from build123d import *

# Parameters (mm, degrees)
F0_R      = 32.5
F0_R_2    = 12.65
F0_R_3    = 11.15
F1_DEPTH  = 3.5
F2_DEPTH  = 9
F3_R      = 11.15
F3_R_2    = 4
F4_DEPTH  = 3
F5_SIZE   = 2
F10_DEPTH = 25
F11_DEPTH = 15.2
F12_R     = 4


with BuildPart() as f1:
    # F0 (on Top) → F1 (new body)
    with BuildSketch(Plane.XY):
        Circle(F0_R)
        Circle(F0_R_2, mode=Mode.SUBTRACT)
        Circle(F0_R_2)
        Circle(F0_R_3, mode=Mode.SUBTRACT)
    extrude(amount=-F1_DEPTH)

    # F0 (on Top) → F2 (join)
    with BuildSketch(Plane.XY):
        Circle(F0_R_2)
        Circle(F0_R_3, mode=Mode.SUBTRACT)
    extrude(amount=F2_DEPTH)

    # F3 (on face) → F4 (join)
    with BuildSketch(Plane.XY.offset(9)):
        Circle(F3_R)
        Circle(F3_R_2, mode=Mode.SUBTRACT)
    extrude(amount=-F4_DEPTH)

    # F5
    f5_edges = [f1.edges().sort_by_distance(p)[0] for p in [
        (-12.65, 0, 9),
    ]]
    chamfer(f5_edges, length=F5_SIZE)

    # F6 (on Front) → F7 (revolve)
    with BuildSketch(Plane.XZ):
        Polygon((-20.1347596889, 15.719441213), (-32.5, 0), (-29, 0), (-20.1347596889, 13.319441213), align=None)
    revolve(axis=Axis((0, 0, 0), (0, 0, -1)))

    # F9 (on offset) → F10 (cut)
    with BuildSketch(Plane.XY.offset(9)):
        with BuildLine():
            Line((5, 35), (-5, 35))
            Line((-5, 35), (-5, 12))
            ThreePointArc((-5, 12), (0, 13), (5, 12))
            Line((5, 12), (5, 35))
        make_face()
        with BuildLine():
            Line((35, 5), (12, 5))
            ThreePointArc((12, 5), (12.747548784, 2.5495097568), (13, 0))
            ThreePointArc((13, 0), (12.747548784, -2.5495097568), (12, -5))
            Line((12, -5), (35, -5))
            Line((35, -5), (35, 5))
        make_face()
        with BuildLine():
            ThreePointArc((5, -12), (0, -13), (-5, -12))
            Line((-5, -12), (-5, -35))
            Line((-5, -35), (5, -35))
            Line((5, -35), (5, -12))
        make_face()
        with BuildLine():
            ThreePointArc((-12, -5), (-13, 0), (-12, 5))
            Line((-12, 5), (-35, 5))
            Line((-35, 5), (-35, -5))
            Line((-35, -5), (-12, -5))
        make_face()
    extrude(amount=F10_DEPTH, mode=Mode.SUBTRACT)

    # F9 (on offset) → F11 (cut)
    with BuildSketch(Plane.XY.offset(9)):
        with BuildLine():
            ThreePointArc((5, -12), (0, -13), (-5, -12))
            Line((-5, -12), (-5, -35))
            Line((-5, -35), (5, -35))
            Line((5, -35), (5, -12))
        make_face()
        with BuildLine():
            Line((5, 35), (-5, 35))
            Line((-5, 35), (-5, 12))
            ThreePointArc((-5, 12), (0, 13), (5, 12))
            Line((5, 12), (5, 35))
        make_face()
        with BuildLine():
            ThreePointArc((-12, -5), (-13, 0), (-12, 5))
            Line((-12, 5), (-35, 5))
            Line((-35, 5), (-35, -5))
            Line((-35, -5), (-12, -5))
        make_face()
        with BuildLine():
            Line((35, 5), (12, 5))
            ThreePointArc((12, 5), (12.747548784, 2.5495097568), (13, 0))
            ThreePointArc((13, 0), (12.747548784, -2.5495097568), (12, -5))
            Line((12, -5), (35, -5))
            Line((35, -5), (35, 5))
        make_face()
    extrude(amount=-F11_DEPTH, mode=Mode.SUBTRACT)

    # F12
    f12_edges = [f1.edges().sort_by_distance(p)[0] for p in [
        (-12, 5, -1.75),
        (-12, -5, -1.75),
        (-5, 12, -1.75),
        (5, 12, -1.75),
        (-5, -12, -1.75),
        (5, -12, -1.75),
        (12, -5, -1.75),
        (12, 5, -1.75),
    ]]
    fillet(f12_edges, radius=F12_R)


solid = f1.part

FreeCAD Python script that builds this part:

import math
import FreeCAD as App
import Part
import Sketcher


def edges_at(feature, points):
    """Names of the edges that pass closest to the given points."""
    edges = feature.Shape.Edges
    near = lambda p: min(range(len(edges)), key=lambda i: edges[i].distToShape(Part.Vertex(*p))[0])
    return sorted({f"Edge{near(p) + 1}" for p in points})


def add_polygon(sketch, points):
    """Adds a closed chain of lines whose ends are joined by coincident constraints."""
    first, n = sketch.GeometryCount, len(points)
    for a, b in zip(points, points[1:] + points[:1]):
        sketch.addGeometry(Part.LineSegment(App.Vector(*a, 0), App.Vector(*b, 0)), False)
    for i in range(n):
        sketch.addConstraint(Sketcher.Constraint("Coincident", first + i, 2, first + (i + 1) % n, 1))

doc = App.newDocument("Part")
body = doc.addObject("PartDesign::Body", "Body")

# Sketch on XY plane
sketch1 = doc.addObject("Sketcher::SketchObject", "Sketch")
body.addObject(sketch1)
sketch1.AttachmentSupport = (doc.XY_Plane, [""])
sketch1.MapMode = "FlatFace"
sketch1.addGeometry(Part.Circle(App.Vector(0, 0, 0), App.Vector(0, 0, 1), 32), False)
sketch1.addGeometry(Part.Circle(App.Vector(0, 0, 0), App.Vector(0, 0, 1), 11), False)
sketch1.addConstraint(Sketcher.Constraint("Coincident", 0, 3, -1, 1))
sketch1.addConstraint(Sketcher.Constraint("Coincident", 1, 3, -1, 1))
sketch1.addConstraint(Sketcher.Constraint("Diameter", 0, 65.0))
sketch1.addConstraint(Sketcher.Constraint("Diameter", 1, 22.3))
pad1 = doc.addObject("PartDesign::Pad", "Pad")
body.addObject(pad1)
pad1.Profile = sketch1
pad1.Length = 3.5
pad1.Reversed = True

# Sketch on XY plane
sketch2 = doc.addObject("Sketcher::SketchObject", "Sketch001")
body.addObject(sketch2)
sketch2.AttachmentSupport = (doc.XY_Plane, [""])
sketch2.MapMode = "FlatFace"
sketch2.addGeometry(Part.Circle(App.Vector(0, 0, 0), App.Vector(0, 0, 1), 13), False)
sketch2.addGeometry(Part.Circle(App.Vector(0, 0, 0), App.Vector(0, 0, 1), 11), False)
sketch2.addConstraint(Sketcher.Constraint("Coincident", 0, 3, -1, 1))
sketch2.addConstraint(Sketcher.Constraint("Coincident", 1, 3, -1, 1))
sketch2.addConstraint(Sketcher.Constraint("Diameter", 0, 25.3))
sketch2.addConstraint(Sketcher.Constraint("Diameter", 1, 22.3))
pad2 = doc.addObject("PartDesign::Pad", "Pad001")
body.addObject(pad2)
pad2.Profile = sketch2
pad2.Length = 9

# Sketch on XY plane
sketch3 = doc.addObject("Sketcher::SketchObject", "Sketch002")
body.addObject(sketch3)
sketch3.AttachmentSupport = (doc.XY_Plane, [""])
sketch3.MapMode = "FlatFace"
sketch3.AttachmentOffset = App.Placement(App.Vector(0, 0, 9), App.Rotation())
sketch3.addGeometry(Part.Circle(App.Vector(0, 0, 0), App.Vector(0, 0, 1), 11.2), False)
sketch3.addGeometry(Part.Circle(App.Vector(0, 0, 0), App.Vector(0, 0, 1), 4), False)
sketch3.addConstraint(Sketcher.Constraint("Coincident", 0, 3, -1, 1))
sketch3.addConstraint(Sketcher.Constraint("Coincident", 1, 3, -1, 1))
sketch3.addConstraint(Sketcher.Constraint("Diameter", 1, 8.0))
sketch3.addConstraint(Sketcher.Constraint("Diameter", 0, 22.3))
pad3 = doc.addObject("PartDesign::Pad", "Pad002")
body.addObject(pad3)
pad3.Profile = sketch3
pad3.Length = 3
pad3.Reversed = True
doc.recompute()

chamfer = doc.addObject("PartDesign::Chamfer", "Chamfer")
body.addObject(chamfer)
chamfer.Base = (pad3, edges_at(pad3, [(-12.65, 0, 9)]))
chamfer.Size = 2

# Sketch on XZ plane
sketch4 = doc.addObject("Sketcher::SketchObject", "Sketch003")
body.addObject(sketch4)
sketch4.AttachmentSupport = (doc.XZ_Plane, [""])
sketch4.MapMode = "FlatFace"
add_polygon(sketch4, [(-20.1, 15.7), (-32.5, 0), (-29, 0), (-20.1, 13.3)])  # lines 0-3
sketch4.addConstraint(Sketcher.Constraint("Horizontal", 1))
sketch4.addConstraint(Sketcher.Constraint("Vertical", 3))
sketch4.addConstraint(Sketcher.Constraint("PointOnObject", 0, 2, -1))
sketch4.addConstraint(Sketcher.Constraint("Distance", 0, 20.0))
sketch4.addConstraint(Sketcher.Constraint("Distance", 2, 16.0))
sketch4.addConstraint(Sketcher.Constraint("DistanceX", 1, 1, 1, 2, 3.5))
sketch4.addConstraint(Sketcher.Constraint("DistanceY", 3, 1, 3, 2, 2.4))
sketch4.addConstraint(Sketcher.Constraint("DistanceX", 1, 2, -1, 1, 29.0))
revolution = doc.addObject("PartDesign::Revolution", "Revolution")
body.addObject(revolution)
revolution.Profile = sketch4
revolution.ReferenceAxis = (sketch4, ["V_Axis"])
revolution.Angle = 360

# Sketch on XY plane
sketch5 = doc.addObject("Sketcher::SketchObject", "Sketch004")
body.addObject(sketch5)
sketch5.AttachmentSupport = (doc.XY_Plane, [""])
sketch5.MapMode = "FlatFace"
sketch5.AttachmentOffset = App.Placement(App.Vector(0, 0, 9), App.Rotation())
sketch5.addGeometry(Part.LineSegment(App.Vector(5, 35, 0), App.Vector(-5, 35, 0)), False)
sketch5.addGeometry(Part.LineSegment(App.Vector(-5, 35, 0), App.Vector(-5, 12, 0)), False)
sketch5.addGeometry(Part.ArcOfCircle(Part.Circle(App.Vector(0, 0, 0), App.Vector(0, 0, 1), 13), math.radians(67), math.radians(113)), False)
sketch5.addGeometry(Part.LineSegment(App.Vector(5, 12, 0), App.Vector(5, 35, 0)), False)
sketch5.addGeometry(Part.LineSegment(App.Vector(35, 5, 0), App.Vector(12, 5, 0)), False)
sketch5.addGeometry(Part.ArcOfCircle(Part.Circle(App.Vector(0, 0, 0), App.Vector(0, 0, 1), 13), math.radians(0), math.radians(23)), False)
sketch5.addGeometry(Part.ArcOfCircle(Part.Circle(App.Vector(0, 0, 0), App.Vector(0, 0, 1), 13), math.radians(-23), math.radians(0)), False)
sketch5.addGeometry(Part.LineSegment(App.Vector(12, -5, 0), App.Vector(35, -5, 0)), False)
sketch5.addGeometry(Part.LineSegment(App.Vector(35, -5, 0), App.Vector(35, 5, 0)), False)
sketch5.addGeometry(Part.ArcOfCircle(Part.Circle(App.Vector(0, 0, 0), App.Vector(0, 0, 1), 13), math.radians(-113), math.radians(-67)), False)
sketch5.addGeometry(Part.LineSegment(App.Vector(-5, -12, 0), App.Vector(-5, -35, 0)), False)
sketch5.addGeometry(Part.LineSegment(App.Vector(-5, -35, 0), App.Vector(5, -35, 0)), False)
sketch5.addGeometry(Part.LineSegment(App.Vector(5, -35, 0), App.Vector(5, -12, 0)), False)
sketch5.addGeometry(Part.ArcOfCircle(Part.Circle(App.Vector(0, 0, 0), App.Vector(0, 0, 1), 13), math.radians(157), math.radians(203)), False)
sketch5.addGeometry(Part.LineSegment(App.Vector(-12, 5, 0), App.Vector(-35, 5, 0)), False)
sketch5.addGeometry(Part.LineSegment(App.Vector(-35, 5, 0), App.Vector(-35, -5, 0)), False)
sketch5.addGeometry(Part.LineSegment(App.Vector(-35, -5, 0), App.Vector(-12, -5, 0)), False)
sketch5.addConstraint(Sketcher.Constraint("Coincident", 0, 2, 1, 1))
sketch5.addConstraint(Sketcher.Constraint("Coincident", 1, 2, 2, 2))
sketch5.addConstraint(Sketcher.Constraint("Coincident", 2, 1, 3, 1))
sketch5.addConstraint(Sketcher.Constraint("Coincident", 3, 2, 0, 1))
sketch5.addConstraint(Sketcher.Constraint("Coincident", 4, 2, 5, 2))
sketch5.addConstraint(Sketcher.Constraint("Tangent", 5, 1, 6, 2))
sketch5.addConstraint(Sketcher.Constraint("Coincident", 6, 1, 7, 1))
sketch5.addConstraint(Sketcher.Constraint("Coincident", 7, 2, 8, 1))
sketch5.addConstraint(Sketcher.Constraint("Coincident", 8, 2, 4, 1))
sketch5.addConstraint(Sketcher.Constraint("Coincident", 9, 1, 10, 1))
sketch5.addConstraint(Sketcher.Constraint("Coincident", 10, 2, 11, 1))
sketch5.addConstraint(Sketcher.Constraint("Coincident", 11, 2, 12, 1))
sketch5.addConstraint(Sketcher.Constraint("Coincident", 12, 2, 9, 2))
sketch5.addConstraint(Sketcher.Constraint("Coincident", 13, 1, 14, 1))
sketch5.addConstraint(Sketcher.Constraint("Coincident", 14, 2, 15, 1))
sketch5.addConstraint(Sketcher.Constraint("Coincident", 15, 2, 16, 1))
sketch5.addConstraint(Sketcher.Constraint("Coincident", 16, 2, 13, 2))
sketch5.addConstraint(Sketcher.Constraint("Horizontal", 0))
sketch5.addConstraint(Sketcher.Constraint("Vertical", 1))
sketch5.addConstraint(Sketcher.Constraint("Vertical", 3))
sketch5.addConstraint(Sketcher.Constraint("Horizontal", 4))
sketch5.addConstraint(Sketcher.Constraint("Horizontal", 7))
sketch5.addConstraint(Sketcher.Constraint("Vertical", 8))
sketch5.addConstraint(Sketcher.Constraint("Vertical", 10))
sketch5.addConstraint(Sketcher.Constraint("Horizontal", 11))
sketch5.addConstraint(Sketcher.Constraint("Vertical", 12))
sketch5.addConstraint(Sketcher.Constraint("Horizontal", 14))
sketch5.addConstraint(Sketcher.Constraint("Vertical", 15))
sketch5.addConstraint(Sketcher.Constraint("Horizontal", 16))
sketch5.addConstraint(Sketcher.Constraint("Coincident", 2, 3, -1, 1))
sketch5.addConstraint(Sketcher.Constraint("Coincident", 5, 3, -1, 1))
sketch5.addConstraint(Sketcher.Constraint("Coincident", 9, 3, -1, 1))
sketch5.addConstraint(Sketcher.Constraint("Coincident", 13, 3, -1, 1))
sketch5.addConstraint(Sketcher.Constraint("Equal", 2, 5))
sketch5.addConstraint(Sketcher.Constraint("Equal", 5, 6))
sketch5.addConstraint(Sketcher.Constraint("Equal", 6, 9))
sketch5.addConstraint(Sketcher.Constraint("Equal", 9, 13))
sketch5.addConstraint(Sketcher.Constraint("Symmetric", 3, 2, 10, 2, -1, 1))
sketch5.addConstraint(Sketcher.Constraint("Symmetric", 7, 2, 14, 2, -1, 1))
sketch5.addConstraint(Sketcher.Constraint("PointOnObject", 5, 1, -1))
sketch5.addConstraint(Sketcher.Constraint("Horizontal", 1, 2, 2, 1))
sketch5.addConstraint(Sketcher.Constraint("Horizontal", 9, 1, 12, 2))
sketch5.addConstraint(Sketcher.Constraint("Horizontal", 8, 2, 13, 1))
sketch5.addConstraint(Sketcher.Constraint("Horizontal", 7, 2, 15, 2))
sketch5.addConstraint(Sketcher.Constraint("Equal", 16, 1))
sketch5.addConstraint(Sketcher.Constraint("Equal", 11, 8))
sketch5.addConstraint(Sketcher.Constraint("Radius", 2, 13.0))
sketch5.addConstraint(Sketcher.Constraint("DistanceX", 0, 2, 0, 1, 10.0))
sketch5.addConstraint(Sketcher.Constraint("DistanceX", 4, 2, 4, 1, 23.0))
pocket1 = doc.addObject("PartDesign::Pocket", "Pocket")
body.addObject(pocket1)
pocket1.Profile = sketch5
pocket1.Length = 25
pocket1.Reversed = True

# Sketch on XY plane
sketch6 = doc.addObject("Sketcher::SketchObject", "Sketch005")
body.addObject(sketch6)
sketch6.AttachmentSupport = (doc.XY_Plane, [""])
sketch6.MapMode = "FlatFace"
sketch6.AttachmentOffset = App.Placement(App.Vector(0, 0, 9), App.Rotation())
sketch6.addGeometry(Part.ArcOfCircle(Part.Circle(App.Vector(0, 0, 0), App.Vector(0, 0, 1), 13), math.radians(-113), math.radians(-67)), False)
sketch6.addGeometry(Part.LineSegment(App.Vector(-5, -12, 0), App.Vector(-5, -35, 0)), False)
sketch6.addGeometry(Part.LineSegment(App.Vector(-5, -35, 0), App.Vector(5, -35, 0)), False)
sketch6.addGeometry(Part.LineSegment(App.Vector(5, -35, 0), App.Vector(5, -12, 0)), False)
sketch6.addGeometry(Part.LineSegment(App.Vector(5, 35, 0), App.Vector(-5, 35, 0)), False)
sketch6.addGeometry(Part.LineSegment(App.Vector(-5, 35, 0), App.Vector(-5, 12, 0)), False)
sketch6.addGeometry(Part.ArcOfCircle(Part.Circle(App.Vector(0, 0, 0), App.Vector(0, 0, 1), 13), math.radians(67), math.radians(113)), False)
sketch6.addGeometry(Part.LineSegment(App.Vector(5, 12, 0), App.Vector(5, 35, 0)), False)
sketch6.addGeometry(Part.ArcOfCircle(Part.Circle(App.Vector(0, 0, 0), App.Vector(0, 0, 1), 13), math.radians(157), math.radians(203)), False)
sketch6.addGeometry(Part.LineSegment(App.Vector(-12, 5, 0), App.Vector(-35, 5, 0)), False)
sketch6.addGeometry(Part.LineSegment(App.Vector(-35, 5, 0), App.Vector(-35, -5, 0)), False)
sketch6.addGeometry(Part.LineSegment(App.Vector(-35, -5, 0), App.Vector(-12, -5, 0)), False)
sketch6.addGeometry(Part.LineSegment(App.Vector(35, 5, 0), App.Vector(12, 5, 0)), False)
sketch6.addGeometry(Part.ArcOfCircle(Part.Circle(App.Vector(0, 0, 0), App.Vector(0, 0, 1), 13), math.radians(0), math.radians(23)), False)
sketch6.addGeometry(Part.ArcOfCircle(Part.Circle(App.Vector(0, 0, 0), App.Vector(0, 0, 1), 13), math.radians(-23), math.radians(0)), False)
sketch6.addGeometry(Part.LineSegment(App.Vector(12, -5, 0), App.Vector(35, -5, 0)), False)
sketch6.addGeometry(Part.LineSegment(App.Vector(35, -5, 0), App.Vector(35, 5, 0)), False)
sketch6.addConstraint(Sketcher.Constraint("Coincident", 0, 1, 1, 1))
sketch6.addConstraint(Sketcher.Constraint("Coincident", 1, 2, 2, 1))
sketch6.addConstraint(Sketcher.Constraint("Coincident", 2, 2, 3, 1))
sketch6.addConstraint(Sketcher.Constraint("Coincident", 3, 2, 0, 2))
sketch6.addConstraint(Sketcher.Constraint("Coincident", 4, 2, 5, 1))
sketch6.addConstraint(Sketcher.Constraint("Coincident", 5, 2, 6, 2))
sketch6.addConstraint(Sketcher.Constraint("Coincident", 6, 1, 7, 1))
sketch6.addConstraint(Sketcher.Constraint("Coincident", 7, 2, 4, 1))
sketch6.addConstraint(Sketcher.Constraint("Coincident", 8, 1, 9, 1))
sketch6.addConstraint(Sketcher.Constraint("Coincident", 9, 2, 10, 1))
sketch6.addConstraint(Sketcher.Constraint("Coincident", 10, 2, 11, 1))
sketch6.addConstraint(Sketcher.Constraint("Coincident", 11, 2, 8, 2))
sketch6.addConstraint(Sketcher.Constraint("Coincident", 12, 2, 13, 2))
sketch6.addConstraint(Sketcher.Constraint("Tangent", 13, 1, 14, 2))
sketch6.addConstraint(Sketcher.Constraint("Coincident", 14, 1, 15, 1))
sketch6.addConstraint(Sketcher.Constraint("Coincident", 15, 2, 16, 1))
sketch6.addConstraint(Sketcher.Constraint("Coincident", 16, 2, 12, 1))
sketch6.addConstraint(Sketcher.Constraint("Vertical", 1))
sketch6.addConstraint(Sketcher.Constraint("Horizontal", 2))
sketch6.addConstraint(Sketcher.Constraint("Vertical", 3))
sketch6.addConstraint(Sketcher.Constraint("Horizontal", 4))
sketch6.addConstraint(Sketcher.Constraint("Vertical", 5))
sketch6.addConstraint(Sketcher.Constraint("Vertical", 7))
sketch6.addConstraint(Sketcher.Constraint("Horizontal", 9))
sketch6.addConstraint(Sketcher.Constraint("Vertical", 10))
sketch6.addConstraint(Sketcher.Constraint("Horizontal", 11))
sketch6.addConstraint(Sketcher.Constraint("Horizontal", 12))
sketch6.addConstraint(Sketcher.Constraint("Horizontal", 15))
sketch6.addConstraint(Sketcher.Constraint("Vertical", 16))
sketch6.addConstraint(Sketcher.Constraint("Coincident", 0, 3, -1, 1))
sketch6.addConstraint(Sketcher.Constraint("Coincident", 6, 3, -1, 1))
sketch6.addConstraint(Sketcher.Constraint("Coincident", 8, 3, -1, 1))
sketch6.addConstraint(Sketcher.Constraint("Coincident", 13, 3, -1, 1))
sketch6.addConstraint(Sketcher.Constraint("Equal", 0, 6))
sketch6.addConstraint(Sketcher.Constraint("Equal", 6, 8))
sketch6.addConstraint(Sketcher.Constraint("Equal", 8, 13))
sketch6.addConstraint(Sketcher.Constraint("Equal", 13, 14))
sketch6.addConstraint(Sketcher.Constraint("Symmetric", 2, 2, 4, 2, -1, 1))
sketch6.addConstraint(Sketcher.Constraint("Symmetric", 9, 2, 15, 2, -1, 1))
sketch6.addConstraint(Sketcher.Constraint("PointOnObject", 13, 1, -1))
sketch6.addConstraint(Sketcher.Constraint("Horizontal", 0, 1, 3, 2))
sketch6.addConstraint(Sketcher.Constraint("Horizontal", 5, 2, 6, 1))
sketch6.addConstraint(Sketcher.Constraint("Horizontal", 9, 2, 12, 2))
sketch6.addConstraint(Sketcher.Constraint("Horizontal", 11, 2, 14, 1))
sketch6.addConstraint(Sketcher.Constraint("Equal", 15, 1))
sketch6.addConstraint(Sketcher.Constraint("Equal", 4, 10))
sketch6.addConstraint(Sketcher.Constraint("Radius", 0, 13.0))
sketch6.addConstraint(Sketcher.Constraint("DistanceX", 2, 1, 2, 2, 10.0))
sketch6.addConstraint(Sketcher.Constraint("DistanceX", 9, 2, 9, 1, 23.0))
pocket2 = doc.addObject("PartDesign::Pocket", "Pocket001")
body.addObject(pocket2)
pocket2.Profile = sketch6
pocket2.Length = 15.2
doc.recompute()

fillet = doc.addObject("PartDesign::Fillet", "Fillet")
body.addObject(fillet)
fillet.Base = (pocket2, edges_at(pocket2, [
    (-12, 5, -1.75),
    (-12, -5, -1.75),
    (-5, 12, -1.75),
    (5, 12, -1.75),
    (-5, -12, -1.75),
    (5, -12, -1.75),
    (12, -5, -1.75),
    (12, 5, -1.75),
]))
fillet.Radius = 4

doc.recompute()
